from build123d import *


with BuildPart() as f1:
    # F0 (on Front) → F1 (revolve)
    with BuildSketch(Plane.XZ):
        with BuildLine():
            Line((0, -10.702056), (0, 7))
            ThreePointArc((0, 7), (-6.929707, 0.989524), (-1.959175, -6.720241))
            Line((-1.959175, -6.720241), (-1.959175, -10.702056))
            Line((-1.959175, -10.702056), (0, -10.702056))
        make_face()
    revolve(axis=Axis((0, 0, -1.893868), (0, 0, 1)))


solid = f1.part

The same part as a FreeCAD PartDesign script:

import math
import FreeCAD as App
import Part
import Sketcher

V = App.Vector
Q = App.Units.Quantity

doc = App.newDocument("Part")
body = doc.addObject("PartDesign::Body", "Body")

sketch1 = body.newObject("Sketcher::SketchObject", "Sketch")
sketch1.AttachmentSupport = (doc.getObject("XZ_Plane"), [""])
sketch1.MapMode = "FlatFace"
sketch1.addGeometry([
    Part.LineSegment(V(0, -10.7, 0), V(0, 7, 0)),
    Part.ArcOfCircle(Part.Circle(V(0, 0, 0), V(0, 0, 1), 7), math.radians(90), math.radians(254)),
    Part.LineSegment(V(-2, -6.7, 0), V(-2, -10.7, 0)),
    Part.LineSegment(V(-2, -10.7, 0), V(0, -10.7, 0)),
], False)
sketch1.addConstraint([
    Sketcher.Constraint("Coincident", 0, 2, 1, 1),
    Sketcher.Constraint("Coincident", 1, 2, 2, 1),
    Sketcher.Constraint("Coincident", 2, 2, 3, 1),
    Sketcher.Constraint("Coincident", 3, 2, 0, 1),
    Sketcher.Constraint("Vertical", 0),
    Sketcher.Constraint("Vertical", 2),
    Sketcher.Constraint("Horizontal", 3),
    Sketcher.Constraint("Coincident", 1, 3, -1, 1),
    Sketcher.Constraint("PointOnObject", 0, 2, -2),
    Sketcher.Constraint("Radius", 1, Q("7 mm")),
    Sketcher.Constraint("DistanceX", 3, 1, 3, 2, Q("1.959175 mm")),
    Sketcher.Constraint("DistanceY", 0, 1, 0, 2, Q("17.702056 mm")),
])
revolution = body.newObject("PartDesign::Revolution", "Revolution")
revolution.Profile = sketch1
revolution.ReferenceAxis = (sketch1, ["V_Axis"])
revolution.Angle = 360

doc.recompute()
